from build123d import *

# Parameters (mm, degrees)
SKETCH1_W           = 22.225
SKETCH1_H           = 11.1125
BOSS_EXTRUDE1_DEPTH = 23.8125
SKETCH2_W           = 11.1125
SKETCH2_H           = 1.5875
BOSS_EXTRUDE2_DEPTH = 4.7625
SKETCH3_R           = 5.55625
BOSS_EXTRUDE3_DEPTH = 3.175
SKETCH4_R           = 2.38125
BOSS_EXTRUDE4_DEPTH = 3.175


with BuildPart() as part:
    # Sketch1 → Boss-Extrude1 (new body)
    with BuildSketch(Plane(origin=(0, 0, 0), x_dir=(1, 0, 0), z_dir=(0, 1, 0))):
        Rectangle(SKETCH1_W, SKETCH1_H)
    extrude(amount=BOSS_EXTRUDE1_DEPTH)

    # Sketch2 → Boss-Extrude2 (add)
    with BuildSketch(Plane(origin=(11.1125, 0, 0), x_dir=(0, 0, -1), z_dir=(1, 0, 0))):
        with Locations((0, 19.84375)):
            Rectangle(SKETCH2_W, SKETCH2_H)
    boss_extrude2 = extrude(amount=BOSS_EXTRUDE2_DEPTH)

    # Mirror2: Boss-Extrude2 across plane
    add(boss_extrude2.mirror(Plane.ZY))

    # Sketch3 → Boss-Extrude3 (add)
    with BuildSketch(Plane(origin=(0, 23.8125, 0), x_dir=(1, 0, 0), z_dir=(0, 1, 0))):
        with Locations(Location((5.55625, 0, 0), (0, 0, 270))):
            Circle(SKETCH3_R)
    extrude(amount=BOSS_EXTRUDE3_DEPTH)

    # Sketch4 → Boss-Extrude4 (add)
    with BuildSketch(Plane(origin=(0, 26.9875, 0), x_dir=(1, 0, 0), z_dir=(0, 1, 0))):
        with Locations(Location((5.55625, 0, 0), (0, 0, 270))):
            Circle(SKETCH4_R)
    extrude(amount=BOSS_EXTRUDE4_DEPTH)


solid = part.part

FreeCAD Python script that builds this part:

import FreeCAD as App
import Part
import Sketcher
Q = App.Units.Quantity

doc = App.newDocument("Part")
params = doc.addObject("Spreadsheet::Sheet", "Params")
for row, (alias, value) in enumerate([
    ("sketch1_width", "0.875 in"),
    ("sketch1_height", "0.4375 in"),
    ("pad1_length", "0.9375 in"),
    ("sketch2_width", "0.0625 in"),
    ("sketch2_height", "0.4375 in"),
    ("pad2_length", "0.1875 in"),
    ("sketch3_diameter", "0.4375 in"),
    ("pad3_length", "0.125 in"),
    ("sketch4_diameter", "0.1875 in"),
    ("pad4_length", "0.125 in"),
], start=1):
    params.set(f"A{row}", alias)
    params.set(f"B{row}", "=" + value)
    params.setAlias(f"B{row}", alias)

body = doc.addObject("PartDesign::Body", "Body")

# Sketch on XZ plane
sketch1 = body.newObject("Sketcher::SketchObject", "Sketch")
sketch1.AttachmentSupport = (doc.getObject("XZ_Plane"), [""])
sketch1.MapMode = "FlatFace"
sketch1.addGeometry([
    Part.LineSegment(App.Vector(-11, -6, 0), App.Vector(-11, 6, 0)),
    Part.LineSegment(App.Vector(-11, 6, 0), App.Vector(11, 6, 0)),
    Part.LineSegment(App.Vector(11, 6, 0), App.Vector(11, -6, 0)),
    Part.LineSegment(App.Vector(11, -6, 0), App.Vector(-11, -6, 0)),
], False)
sketch1.addConstraint([
    Sketcher.Constraint("Coincident", 0, 2, 1, 1),
    Sketcher.Constraint("Coincident", 1, 2, 2, 1),
    Sketcher.Constraint("Coincident", 2, 2, 3, 1),
    Sketcher.Constraint("Coincident", 3, 2, 0, 1),
    Sketcher.Constraint("Vertical", 0),
    Sketcher.Constraint("Horizontal", 1),
    Sketcher.Constraint("Vertical", 2),
    Sketcher.Constraint("Horizontal", 3),
    Sketcher.Constraint("Symmetric", 0, 2, 2, 2, -1, 1),
    Sketcher.Constraint("DistanceX", 1, 1, 1, 2, Q("0.875 in")),
    Sketcher.Constraint("DistanceY", 0, 1, 0, 2, Q("0.4375 in")),
])
sketch1.setExpression("Constraints[9]", "Params.sketch1_width")
sketch1.setExpression("Constraints[10]", "Params.sketch1_height")
pad1 = body.newObject("PartDesign::Pad", "Pad")
pad1.Profile = sketch1
pad1.setExpression("Length", "Params.pad1_length")
pad1.Reversed = True

# Sketch on YZ plane
sketch2 = body.newObject("Sketcher::SketchObject", "Sketch001")
sketch2.AttachmentSupport = (doc.getObject("YZ_Plane"), [""])
sketch2.MapMode = "FlatFace"
sketch2.AttachmentOffset = App.Placement(App.Vector(0, 0, 0.4375 * 25.4), App.Rotation())
sketch2.addGeometry([
    Part.LineSegment(App.Vector(20.6, 5.6, 0), App.Vector(19.1, 5.6, 0)),
    Part.LineSegment(App.Vector(19.1, 5.6, 0), App.Vector(19.1, -5.6, 0)),
    Part.LineSegment(App.Vector(19.1, -5.6, 0), App.Vector(20.6, -5.6, 0)),
    Part.LineSegment(App.Vector(20.6, -5.6, 0), App.Vector(20.6, 5.6, 0)),
], False)
sketch2.addConstraint([
    Sketcher.Constraint("Coincident", 0, 2, 1, 1),
    Sketcher.Constraint("Coincident", 1, 2, 2, 1),
    Sketcher.Constraint("Coincident", 2, 2, 3, 1),
    Sketcher.Constraint("Coincident", 3, 2, 0, 1),
    Sketcher.Constraint("Horizontal", 0),
    Sketcher.Constraint("Vertical", 1),
    Sketcher.Constraint("Horizontal", 2),
    Sketcher.Constraint("Vertical", 3),
    Sketcher.Constraint("DistanceX", 0, 2, 0, 1, Q("0.0625 in")),
    Sketcher.Constraint("DistanceY", 1, 2, 1, 1, Q("0.4375 in")),
    Sketcher.Constraint("DistanceX", -1, 1, 0, 2, Q("0.75 in")),
    Sketcher.Constraint("DistanceY", -1, 1, 0, 2, Q("0.21875 in")),
])
sketch2.setExpression("Constraints[8]", "Params.sketch2_width")
sketch2.setExpression("Constraints[9]", "Params.sketch2_height")
pad2 = body.newObject("PartDesign::Pad", "Pad001")
pad2.Profile = sketch2
pad2.setExpression("Length", "Params.pad2_length")
doc.recompute()

mirrored = body.newObject("PartDesign::Mirrored", "Mirrored")
mirrored.Originals = [pad2]
mirrored.MirrorPlane = (doc.getObject("YZ_Plane"), [""])
body.Tip = mirrored

# Sketch on XZ plane
sketch3 = body.newObject("Sketcher::SketchObject", "Sketch002")
sketch3.AttachmentSupport = (doc.getObject("XZ_Plane"), [""])
sketch3.MapMode = "FlatFace"
sketch3.AttachmentOffset = App.Placement(App.Vector(0, 0, -0.9375 * 25.4), App.Rotation())
sketch3.addGeometry(Part.Circle(App.Vector(6, 0, 0), App.Vector(0, 0, 1), 6), False)
sketch3.addConstraint([
    Sketcher.Constraint("PointOnObject", 0, 3, -1),
    Sketcher.Constraint("Diameter", 0, Q("0.4375 in")),
    Sketcher.Constraint("DistanceX", -1, 1, 0, 3, Q("0.21875 in")),
])
sketch3.setExpression("Constraints[1]", "Params.sketch3_diameter")
pad3 = body.newObject("PartDesign::Pad", "Pad002")
pad3.Profile = sketch3
pad3.setExpression("Length", "Params.pad3_length")
pad3.Reversed = True

# Sketch on XZ plane
sketch4 = body.newObject("Sketcher::SketchObject", "Sketch003")
sketch4.AttachmentSupport = (doc.getObject("XZ_Plane"), [""])
sketch4.MapMode = "FlatFace"
sketch4.AttachmentOffset = App.Placement(App.Vector(0, 0, -1.0625 * 25.4), App.Rotation())
sketch4.addGeometry(Part.Circle(App.Vector(5.6, 0, 0), App.Vector(0, 0, 1), 2.4), False)
sketch4.addConstraint([
    Sketcher.Constraint("PointOnObject", 0, 3, -1),
    Sketcher.Constraint("Diameter", 0, Q("0.1875 in")),
    Sketcher.Constraint("DistanceX", -1, 1, 0, 3, Q("0.21875 in")),
])
sketch4.setExpression("Constraints[1]", "Params.sketch4_diameter")
pad4 = body.newObject("PartDesign::Pad", "Pad003")
pad4.Profile = sketch4
pad4.setExpression("Length", "Params.pad4_length")
pad4.Reversed = True

doc.recompute()
